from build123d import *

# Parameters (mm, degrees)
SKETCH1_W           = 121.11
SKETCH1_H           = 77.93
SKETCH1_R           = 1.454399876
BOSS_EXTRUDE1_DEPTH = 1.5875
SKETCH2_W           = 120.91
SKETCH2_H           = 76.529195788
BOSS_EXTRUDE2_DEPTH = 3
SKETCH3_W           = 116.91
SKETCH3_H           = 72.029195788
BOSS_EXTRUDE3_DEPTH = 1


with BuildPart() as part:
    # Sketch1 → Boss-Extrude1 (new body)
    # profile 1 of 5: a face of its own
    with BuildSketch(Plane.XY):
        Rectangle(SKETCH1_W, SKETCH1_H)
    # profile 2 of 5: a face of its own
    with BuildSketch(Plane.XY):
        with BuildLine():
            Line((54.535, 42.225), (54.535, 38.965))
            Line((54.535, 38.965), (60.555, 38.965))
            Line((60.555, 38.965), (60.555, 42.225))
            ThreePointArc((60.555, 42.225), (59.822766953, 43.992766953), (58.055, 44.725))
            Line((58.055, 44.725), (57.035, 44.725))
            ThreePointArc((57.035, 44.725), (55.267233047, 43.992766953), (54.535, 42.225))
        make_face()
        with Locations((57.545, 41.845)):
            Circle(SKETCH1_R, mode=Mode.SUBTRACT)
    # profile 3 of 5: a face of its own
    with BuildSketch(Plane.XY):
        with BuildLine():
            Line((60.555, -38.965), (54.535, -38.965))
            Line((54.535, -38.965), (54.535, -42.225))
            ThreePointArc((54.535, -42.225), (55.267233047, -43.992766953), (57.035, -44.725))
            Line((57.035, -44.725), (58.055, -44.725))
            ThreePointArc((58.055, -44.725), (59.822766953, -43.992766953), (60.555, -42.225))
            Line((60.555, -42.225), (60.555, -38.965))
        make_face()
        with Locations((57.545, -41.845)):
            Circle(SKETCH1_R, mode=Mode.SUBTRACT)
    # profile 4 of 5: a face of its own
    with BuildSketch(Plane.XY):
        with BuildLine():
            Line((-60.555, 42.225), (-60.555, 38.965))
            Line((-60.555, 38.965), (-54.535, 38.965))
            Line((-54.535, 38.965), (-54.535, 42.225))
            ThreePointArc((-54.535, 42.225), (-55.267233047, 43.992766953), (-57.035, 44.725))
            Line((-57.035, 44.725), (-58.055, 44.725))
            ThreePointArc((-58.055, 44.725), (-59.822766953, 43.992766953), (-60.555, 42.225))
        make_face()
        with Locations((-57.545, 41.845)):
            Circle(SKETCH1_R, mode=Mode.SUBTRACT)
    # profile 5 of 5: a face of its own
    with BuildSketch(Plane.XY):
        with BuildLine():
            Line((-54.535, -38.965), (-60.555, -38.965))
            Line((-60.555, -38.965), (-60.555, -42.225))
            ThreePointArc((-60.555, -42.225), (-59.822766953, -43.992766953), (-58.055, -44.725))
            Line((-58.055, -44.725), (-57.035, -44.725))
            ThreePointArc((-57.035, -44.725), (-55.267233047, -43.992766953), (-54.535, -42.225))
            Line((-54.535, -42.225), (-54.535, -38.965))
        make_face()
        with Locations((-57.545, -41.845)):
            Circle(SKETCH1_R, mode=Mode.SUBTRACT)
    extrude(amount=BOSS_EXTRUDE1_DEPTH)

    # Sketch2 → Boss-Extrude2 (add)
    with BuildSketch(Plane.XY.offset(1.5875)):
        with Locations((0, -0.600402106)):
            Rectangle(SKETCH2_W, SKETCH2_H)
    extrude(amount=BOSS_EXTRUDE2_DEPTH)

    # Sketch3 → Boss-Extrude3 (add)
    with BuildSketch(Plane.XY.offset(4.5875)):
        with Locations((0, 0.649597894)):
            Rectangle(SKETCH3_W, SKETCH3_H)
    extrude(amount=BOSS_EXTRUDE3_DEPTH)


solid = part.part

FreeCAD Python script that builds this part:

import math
import FreeCAD as App
import Part
import Sketcher
from FreeCAD import Vector

doc = App.newDocument("Part")
body = doc.addObject("PartDesign::Body", "Body")

sketch1 = body.newObject("Sketcher::SketchObject", "Sketch")
sketch1.AttachmentSupport = (doc.getObject("XY_Plane"), [""])
sketch1.MapMode = "FlatFace"
sketch1.addGeometry(Part.ArcOfCircle(Part.Circle(Vector(-58.1, -42.2, 0), Vector(0, 0, 1), 2.5), math.radians(180), math.radians(270)), False)
sketch1.addGeometry(Part.LineSegment(Vector(-58.1, -44.7, 0), Vector(-57, -44.7, 0)), False)
sketch1.addGeometry(Part.ArcOfCircle(Part.Circle(Vector(-57, -42.2, 0), Vector(0, 0, 1), 2.5), math.radians(-90), math.radians(0)), False)
sketch1.addGeometry(Part.LineSegment(Vector(-54.5, -42.2, 0), Vector(-54.5, -39, 0)), False)
sketch1.addGeometry(Part.LineSegment(Vector(-54.5, -39, 0), Vector(54.5, -39, 0)), False)
sketch1.addGeometry(Part.LineSegment(Vector(54.5, -39, 0), Vector(54.5, -42.2, 0)), False)
sketch1.addGeometry(Part.ArcOfCircle(Part.Circle(Vector(57, -42.2, 0), Vector(0, 0, 1), 2.5), math.radians(180), math.radians(270)), False)
sketch1.addGeometry(Part.LineSegment(Vector(57, -44.7, 0), Vector(58.1, -44.7, 0)), False)
sketch1.addGeometry(Part.ArcOfCircle(Part.Circle(Vector(58.1, -42.2, 0), Vector(0, 0, 1), 2.5), math.radians(-90), math.radians(0)), False)
sketch1.addGeometry(Part.LineSegment(Vector(60.6, -42.2, 0), Vector(60.6, 42.2, 0)), False)
sketch1.addGeometry(Part.ArcOfCircle(Part.Circle(Vector(58.1, 42.2, 0), Vector(0, 0, 1), 2.5), math.radians(0), math.radians(90)), False)
sketch1.addGeometry(Part.LineSegment(Vector(58.1, 44.7, 0), Vector(57, 44.7, 0)), False)
sketch1.addGeometry(Part.ArcOfCircle(Part.Circle(Vector(57, 42.2, 0), Vector(0, 0, 1), 2.5), math.radians(90), math.radians(180)), False)
sketch1.addGeometry(Part.LineSegment(Vector(54.5, 42.2, 0), Vector(54.5, 39, 0)), False)
sketch1.addGeometry(Part.LineSegment(Vector(54.5, 39, 0), Vector(-54.5, 39, 0)), False)
sketch1.addGeometry(Part.LineSegment(Vector(-54.5, 39, 0), Vector(-54.5, 42.2, 0)), False)
sketch1.addGeometry(Part.ArcOfCircle(Part.Circle(Vector(-57, 42.2, 0), Vector(0, 0, 1), 2.5), math.radians(0), math.radians(90)), False)
sketch1.addGeometry(Part.LineSegment(Vector(-57, 44.7, 0), Vector(-58.1, 44.7, 0)), False)
sketch1.addGeometry(Part.ArcOfCircle(Part.Circle(Vector(-58.1, 42.2, 0), Vector(0, 0, 1), 2.5), math.radians(90), math.radians(180)), False)
sketch1.addGeometry(Part.LineSegment(Vector(-60.6, 42.2, 0), Vector(-60.6, -42.2, 0)), False)
sketch1.addGeometry(Part.Circle(Vector(-57.5, -41.8, 0), Vector(0, 0, 1), 1.5), False)
sketch1.addGeometry(Part.Circle(Vector(57.5, -41.8, 0), Vector(0, 0, 1), 1.5), False)
sketch1.addGeometry(Part.Circle(Vector(-57.5, 41.8, 0), Vector(0, 0, 1), 1.5), False)
sketch1.addGeometry(Part.Circle(Vector(57.5, 41.8, 0), Vector(0, 0, 1), 1.5), False)
sketch1.addConstraint(Sketcher.Constraint("Tangent", 0, 2, 1, 1))
sketch1.addConstraint(Sketcher.Constraint("Tangent", 1, 2, 2, 1))
sketch1.addConstraint(Sketcher.Constraint("Tangent", 2, 2, 3, 1))
sketch1.addConstraint(Sketcher.Constraint("Coincident", 3, 2, 4, 1))
sketch1.addConstraint(Sketcher.Constraint("Coincident", 4, 2, 5, 1))
sketch1.addConstraint(Sketcher.Constraint("Tangent", 5, 2, 6, 1))
sketch1.addConstraint(Sketcher.Constraint("Tangent", 6, 2, 7, 1))
sketch1.addConstraint(Sketcher.Constraint("Tangent", 7, 2, 8, 1))
sketch1.addConstraint(Sketcher.Constraint("Tangent", 8, 2, 9, 1))
sketch1.addConstraint(Sketcher.Constraint("Tangent", 9, 2, 10, 1))
sketch1.addConstraint(Sketcher.Constraint("Tangent", 10, 2, 11, 1))
sketch1.addConstraint(Sketcher.Constraint("Tangent", 11, 2, 12, 1))
sketch1.addConstraint(Sketcher.Constraint("Tangent", 12, 2, 13, 1))
sketch1.addConstraint(Sketcher.Constraint("Coincident", 13, 2, 14, 1))
sketch1.addConstraint(Sketcher.Constraint("Coincident", 14, 2, 15, 1))
sketch1.addConstraint(Sketcher.Constraint("Tangent", 15, 2, 16, 1))
sketch1.addConstraint(Sketcher.Constraint("Tangent", 16, 2, 17, 1))
sketch1.addConstraint(Sketcher.Constraint("Tangent", 17, 2, 18, 1))
sketch1.addConstraint(Sketcher.Constraint("Tangent", 18, 2, 19, 1))
sketch1.addConstraint(Sketcher.Constraint("Tangent", 19, 2, 0, 1))
sketch1.addConstraint(Sketcher.Constraint("Horizontal", 1))
sketch1.addConstraint(Sketcher.Constraint("Vertical", 3))
sketch1.addConstraint(Sketcher.Constraint("Horizontal", 4))
sketch1.addConstraint(Sketcher.Constraint("Vertical", 5))
sketch1.addConstraint(Sketcher.Constraint("Horizontal", 7))
sketch1.addConstraint(Sketcher.Constraint("Vertical", 9))
sketch1.addConstraint(Sketcher.Constraint("Horizontal", 11))
sketch1.addConstraint(Sketcher.Constraint("Vertical", 13))
sketch1.addConstraint(Sketcher.Constraint("Horizontal", 14))
sketch1.addConstraint(Sketcher.Constraint("Vertical", 15))
sketch1.addConstraint(Sketcher.Constraint("Horizontal", 17))
sketch1.addConstraint(Sketcher.Constraint("Vertical", 19))
sketch1.addConstraint(Sketcher.Constraint("Equal", 0, 2))
sketch1.addConstraint(Sketcher.Constraint("Equal", 2, 6))
sketch1.addConstraint(Sketcher.Constraint("Equal", 6, 8))
sketch1.addConstraint(Sketcher.Constraint("Equal", 8, 10))
sketch1.addConstraint(Sketcher.Constraint("Equal", 10, 12))
sketch1.addConstraint(Sketcher.Constraint("Equal", 12, 16))
sketch1.addConstraint(Sketcher.Constraint("Equal", 16, 18))
sketch1.addConstraint(Sketcher.Constraint("Equal", 20, 21))
sketch1.addConstraint(Sketcher.Constraint("Equal", 21, 22))
sketch1.addConstraint(Sketcher.Constraint("Equal", 22, 23))
sketch1.addConstraint(Sketcher.Constraint("Symmetric", 0, 3, 10, 3, -1, 1))
sketch1.addConstraint(Sketcher.Constraint("Symmetric", 6, 3, 16, 3, -1, 1))
sketch1.addConstraint(Sketcher.Constraint("Symmetric", 21, 3, 22, 3, -1, 1))
sketch1.addConstraint(Sketcher.Constraint("Symmetric", 20, 3, 23, 3, -1, 1))
sketch1.addConstraint(Sketcher.Constraint("Symmetric", 3, 2, 13, 2, -1, 1))
sketch1.addConstraint(Sketcher.Constraint("Symmetric", 2, 3, 6, 3, -2))
sketch1.addConstraint(Sketcher.Constraint("Symmetric", 20, 3, 21, 3, -2))
sketch1.addConstraint(Sketcher.Constraint("Radius", 0, 2.5))
sketch1.addConstraint(Sketcher.Constraint("Diameter", 20, 2.9088))
sketch1.addConstraint(Sketcher.Constraint("DistanceX", 1, 1, 1, 2, 1.02))
sketch1.addConstraint(Sketcher.Constraint("DistanceX", 4, 1, 4, 2, 109.07))
sketch1.addConstraint(Sketcher.Constraint("DistanceY", 3, 1, 3, 2, 3.26))
sketch1.addConstraint(Sketcher.Constraint("DistanceY", 9, 1, 9, 2, 84.45))
sketch1.addConstraint(Sketcher.Constraint("DistanceX", 0, 3, 20, 3, 0.51))
sketch1.addConstraint(Sketcher.Constraint("DistanceY", 0, 3, 20, 3, 0.38))
pad1 = body.newObject("PartDesign::Pad", "Pad")
pad1.Profile = sketch1
pad1.Length = 1.5875

sketch2 = body.newObject("Sketcher::SketchObject", "Sketch001")
sketch2.AttachmentSupport = (doc.getObject("XY_Plane"), [""])
sketch2.MapMode = "FlatFace"
sketch2.AttachmentOffset = App.Placement(Vector(0, 0, 1.5875), App.Rotation())
sketch2.addGeometry(Part.LineSegment(Vector(-60, 38, 0), Vector(-60, -39, 0)), False)
sketch2.addGeometry(Part.LineSegment(Vector(-60, -39, 0), Vector(60, -39, 0)), False)
sketch2.addGeometry(Part.LineSegment(Vector(60, -39, 0), Vector(60, 38, 0)), False)
sketch2.addGeometry(Part.LineSegment(Vector(60, 38, 0), Vector(-60, 38, 0)), False)
sketch2.addConstraint(Sketcher.Constraint("Coincident", 0, 2, 1, 1))
sketch2.addConstraint(Sketcher.Constraint("Coincident", 1, 2, 2, 1))
sketch2.addConstraint(Sketcher.Constraint("Coincident", 2, 2, 3, 1))
sketch2.addConstraint(Sketcher.Constraint("Coincident", 3, 2, 0, 1))
sketch2.addConstraint(Sketcher.Constraint("Vertical", 0))
sketch2.addConstraint(Sketcher.Constraint("Horizontal", 1))
sketch2.addConstraint(Sketcher.Constraint("Vertical", 2))
sketch2.addConstraint(Sketcher.Constraint("Horizontal", 3))
sketch2.addConstraint(Sketcher.Constraint("DistanceX", 1, 1, 1, 2, 120.91))
sketch2.addConstraint(Sketcher.Constraint("DistanceX", 0, 2, -1, 1, 60.455))
sketch2.addConstraint(Sketcher.Constraint("DistanceY", 0, 2, -1, 1, 38.865))
sketch2.addConstraint(Sketcher.Constraint("DistanceY", 0, 2, 0, 1, 76.529196))
pad2 = body.newObject("PartDesign::Pad", "Pad001")
pad2.Profile = sketch2
pad2.Length = 3

sketch3 = body.newObject("Sketcher::SketchObject", "Sketch002")
sketch3.AttachmentSupport = (doc.getObject("XY_Plane"), [""])
sketch3.MapMode = "FlatFace"
sketch3.AttachmentOffset = App.Placement(Vector(0, 0, 4.5875), App.Rotation())
sketch3.addGeometry(Part.LineSegment(Vector(-58, 37, 0), Vector(-58, -35, 0)), False)
sketch3.addGeometry(Part.LineSegment(Vector(-58, -35, 0), Vector(58, -35, 0)), False)
sketch3.addGeometry(Part.LineSegment(Vector(58, -35, 0), Vector(58, 37, 0)), False)
sketch3.addGeometry(Part.LineSegment(Vector(58, 37, 0), Vector(-58, 37, 0)), False)
sketch3.addConstraint(Sketcher.Constraint("Coincident", 0, 2, 1, 1))
sketch3.addConstraint(Sketcher.Constraint("Coincident", 1, 2, 2, 1))
sketch3.addConstraint(Sketcher.Constraint("Coincident", 2, 2, 3, 1))
sketch3.addConstraint(Sketcher.Constraint("Coincident", 3, 2, 0, 1))
sketch3.addConstraint(Sketcher.Constraint("Vertical", 0))
sketch3.addConstraint(Sketcher.Constraint("Horizontal", 1))
sketch3.addConstraint(Sketcher.Constraint("Vertical", 2))
sketch3.addConstraint(Sketcher.Constraint("Horizontal", 3))
sketch3.addConstraint(Sketcher.Constraint("DistanceX", 1, 1, 1, 2, 116.91))
sketch3.addConstraint(Sketcher.Constraint("DistanceX", 0, 2, -1, 1, 58.455))
sketch3.addConstraint(Sketcher.Constraint("DistanceY", 0, 2, -1, 1, 35.365))
sketch3.addConstraint(Sketcher.Constraint("DistanceY", 0, 2, 0, 1, 72.029196))
pad3 = body.newObject("PartDesign::Pad", "Pad002")
pad3.Profile = sketch3
pad3.Length = 1

doc.recompute()
